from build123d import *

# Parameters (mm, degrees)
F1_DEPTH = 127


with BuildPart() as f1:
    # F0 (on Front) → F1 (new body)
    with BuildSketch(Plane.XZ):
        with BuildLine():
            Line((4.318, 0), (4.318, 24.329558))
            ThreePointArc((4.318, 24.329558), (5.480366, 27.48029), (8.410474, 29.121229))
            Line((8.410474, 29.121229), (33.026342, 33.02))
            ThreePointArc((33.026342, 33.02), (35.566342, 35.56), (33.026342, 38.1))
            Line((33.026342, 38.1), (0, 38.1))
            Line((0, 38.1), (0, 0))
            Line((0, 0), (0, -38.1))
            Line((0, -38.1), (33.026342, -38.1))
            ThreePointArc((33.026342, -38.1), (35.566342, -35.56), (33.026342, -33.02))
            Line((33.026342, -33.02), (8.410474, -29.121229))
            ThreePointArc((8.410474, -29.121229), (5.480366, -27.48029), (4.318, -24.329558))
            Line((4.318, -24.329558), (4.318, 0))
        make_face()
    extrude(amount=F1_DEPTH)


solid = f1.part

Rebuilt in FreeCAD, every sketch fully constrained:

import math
import FreeCAD as App
import Part
import Sketcher
from FreeCAD import Vector
Q = App.Units.Quantity

doc = App.newDocument("Part")
params = doc.addObject("Spreadsheet::Sheet", "Params")
for row, (alias, value) in enumerate([
    ("sketch1_radius", "0.1 in"),
    ("sketch1_height", "3 in"),
    ("sketch1_radius2", "0.191 in"),
    ("pad1_length", "5 in"),
], start=1):
    params.set(f"A{row}", alias)
    params.set(f"B{row}", "=" + value)
    params.setAlias(f"B{row}", alias)

body = doc.addObject("PartDesign::Body", "Body")

sketch1 = doc.addObject("Sketcher::SketchObject", "Sketch")
body.addObject(sketch1)
sketch1.AttachmentSupport = (doc.XZ_Plane, [""])
sketch1.MapMode = "FlatFace"
sketch1.addGeometry([
    Part.ArcOfCircle(Part.Circle(Vector(9.2, 24.3, 0), Vector(0, 0, 1), 4.9), math.radians(99), math.radians(180)),
    Part.LineSegment(Vector(8.4, 29.1, 0), Vector(33, 33, 0)),
    Part.ArcOfCircle(Part.Circle(Vector(33, 35.6, 0), Vector(0, 0, 1), 2.5), math.radians(-90), math.radians(90)),
    Part.LineSegment(Vector(33, 38.1, 0), Vector(0, 38.1, 0)),
    Part.LineSegment(Vector(0, 38.1, 0), Vector(0, -38.1, 0)),
    Part.LineSegment(Vector(0, -38.1, 0), Vector(33, -38.1, 0)),
    Part.ArcOfCircle(Part.Circle(Vector(33, -35.6, 0), Vector(0, 0, 1), 2.5), math.radians(-90), math.radians(90)),
    Part.LineSegment(Vector(33, -33, 0), Vector(8.4, -29.1, 0)),
    Part.ArcOfCircle(Part.Circle(Vector(9.2, -24.3, 0), Vector(0, 0, 1), 4.9), math.radians(180), math.radians(261)),
    Part.LineSegment(Vector(4.3, -24.3, 0), Vector(4.3, 24.3, 0)),
], False)
sketch1.addConstraint([
    Sketcher.Constraint("Tangent", 0, 1, 1, 1),
    Sketcher.Constraint("Coincident", 1, 2, 2, 1),
    Sketcher.Constraint("Tangent", 2, 2, 3, 1),
    Sketcher.Constraint("Coincident", 3, 2, 4, 1),
    Sketcher.Constraint("Coincident", 4, 2, 5, 1),
    Sketcher.Constraint("Tangent", 5, 2, 6, 1),
    Sketcher.Constraint("Coincident", 6, 2, 7, 1),
    Sketcher.Constraint("Tangent", 7, 2, 8, 2),
    Sketcher.Constraint("Tangent", 8, 1, 9, 1),
    Sketcher.Constraint("Tangent", 9, 2, 0, 2),
    Sketcher.Constraint("Horizontal", 3),
    Sketcher.Constraint("Vertical", 4),
    Sketcher.Constraint("Horizontal", 5),
    Sketcher.Constraint("Vertical", 9),
    Sketcher.Constraint("Equal", 2, 6),
    Sketcher.Constraint("Equal", 0, 8),
    Sketcher.Constraint("Symmetric", 3, 2, 4, 2, -1, 1),
    Sketcher.Constraint("Symmetric", 0, 1, 7, 2, -1),
    Sketcher.Constraint("Vertical", 2, 3, 6, 3),
    Sketcher.Constraint("Vertical", 6, 3, 1, 2),
    Sketcher.Constraint("Radius", 2, Q("0.1 in")),
    Sketcher.Constraint("DistanceY", 4, 2, 4, 1, Q("3 in")),
    Sketcher.Constraint("Angle", 1, Q("9.000001 deg")),
    Sketcher.Constraint("Radius", 0, Q("0.191 in")),
    Sketcher.Constraint("DistanceX", -1, 1, 8, 1, Q("0.17 in")),
    Sketcher.Constraint("DistanceX", 3, 2, 3, 1, 33.026342),
])
sketch1.setExpression("Constraints[20]", "Params.sketch1_radius")
sketch1.setExpression("Constraints[21]", "Params.sketch1_height")
sketch1.setExpression("Constraints[23]", "Params.sketch1_radius2")
pad1 = doc.addObject("PartDesign::Pad", "Pad")
body.addObject(pad1)
pad1.Profile = sketch1
pad1.setExpression("Length", "Params.pad1_length")

doc.recompute()
